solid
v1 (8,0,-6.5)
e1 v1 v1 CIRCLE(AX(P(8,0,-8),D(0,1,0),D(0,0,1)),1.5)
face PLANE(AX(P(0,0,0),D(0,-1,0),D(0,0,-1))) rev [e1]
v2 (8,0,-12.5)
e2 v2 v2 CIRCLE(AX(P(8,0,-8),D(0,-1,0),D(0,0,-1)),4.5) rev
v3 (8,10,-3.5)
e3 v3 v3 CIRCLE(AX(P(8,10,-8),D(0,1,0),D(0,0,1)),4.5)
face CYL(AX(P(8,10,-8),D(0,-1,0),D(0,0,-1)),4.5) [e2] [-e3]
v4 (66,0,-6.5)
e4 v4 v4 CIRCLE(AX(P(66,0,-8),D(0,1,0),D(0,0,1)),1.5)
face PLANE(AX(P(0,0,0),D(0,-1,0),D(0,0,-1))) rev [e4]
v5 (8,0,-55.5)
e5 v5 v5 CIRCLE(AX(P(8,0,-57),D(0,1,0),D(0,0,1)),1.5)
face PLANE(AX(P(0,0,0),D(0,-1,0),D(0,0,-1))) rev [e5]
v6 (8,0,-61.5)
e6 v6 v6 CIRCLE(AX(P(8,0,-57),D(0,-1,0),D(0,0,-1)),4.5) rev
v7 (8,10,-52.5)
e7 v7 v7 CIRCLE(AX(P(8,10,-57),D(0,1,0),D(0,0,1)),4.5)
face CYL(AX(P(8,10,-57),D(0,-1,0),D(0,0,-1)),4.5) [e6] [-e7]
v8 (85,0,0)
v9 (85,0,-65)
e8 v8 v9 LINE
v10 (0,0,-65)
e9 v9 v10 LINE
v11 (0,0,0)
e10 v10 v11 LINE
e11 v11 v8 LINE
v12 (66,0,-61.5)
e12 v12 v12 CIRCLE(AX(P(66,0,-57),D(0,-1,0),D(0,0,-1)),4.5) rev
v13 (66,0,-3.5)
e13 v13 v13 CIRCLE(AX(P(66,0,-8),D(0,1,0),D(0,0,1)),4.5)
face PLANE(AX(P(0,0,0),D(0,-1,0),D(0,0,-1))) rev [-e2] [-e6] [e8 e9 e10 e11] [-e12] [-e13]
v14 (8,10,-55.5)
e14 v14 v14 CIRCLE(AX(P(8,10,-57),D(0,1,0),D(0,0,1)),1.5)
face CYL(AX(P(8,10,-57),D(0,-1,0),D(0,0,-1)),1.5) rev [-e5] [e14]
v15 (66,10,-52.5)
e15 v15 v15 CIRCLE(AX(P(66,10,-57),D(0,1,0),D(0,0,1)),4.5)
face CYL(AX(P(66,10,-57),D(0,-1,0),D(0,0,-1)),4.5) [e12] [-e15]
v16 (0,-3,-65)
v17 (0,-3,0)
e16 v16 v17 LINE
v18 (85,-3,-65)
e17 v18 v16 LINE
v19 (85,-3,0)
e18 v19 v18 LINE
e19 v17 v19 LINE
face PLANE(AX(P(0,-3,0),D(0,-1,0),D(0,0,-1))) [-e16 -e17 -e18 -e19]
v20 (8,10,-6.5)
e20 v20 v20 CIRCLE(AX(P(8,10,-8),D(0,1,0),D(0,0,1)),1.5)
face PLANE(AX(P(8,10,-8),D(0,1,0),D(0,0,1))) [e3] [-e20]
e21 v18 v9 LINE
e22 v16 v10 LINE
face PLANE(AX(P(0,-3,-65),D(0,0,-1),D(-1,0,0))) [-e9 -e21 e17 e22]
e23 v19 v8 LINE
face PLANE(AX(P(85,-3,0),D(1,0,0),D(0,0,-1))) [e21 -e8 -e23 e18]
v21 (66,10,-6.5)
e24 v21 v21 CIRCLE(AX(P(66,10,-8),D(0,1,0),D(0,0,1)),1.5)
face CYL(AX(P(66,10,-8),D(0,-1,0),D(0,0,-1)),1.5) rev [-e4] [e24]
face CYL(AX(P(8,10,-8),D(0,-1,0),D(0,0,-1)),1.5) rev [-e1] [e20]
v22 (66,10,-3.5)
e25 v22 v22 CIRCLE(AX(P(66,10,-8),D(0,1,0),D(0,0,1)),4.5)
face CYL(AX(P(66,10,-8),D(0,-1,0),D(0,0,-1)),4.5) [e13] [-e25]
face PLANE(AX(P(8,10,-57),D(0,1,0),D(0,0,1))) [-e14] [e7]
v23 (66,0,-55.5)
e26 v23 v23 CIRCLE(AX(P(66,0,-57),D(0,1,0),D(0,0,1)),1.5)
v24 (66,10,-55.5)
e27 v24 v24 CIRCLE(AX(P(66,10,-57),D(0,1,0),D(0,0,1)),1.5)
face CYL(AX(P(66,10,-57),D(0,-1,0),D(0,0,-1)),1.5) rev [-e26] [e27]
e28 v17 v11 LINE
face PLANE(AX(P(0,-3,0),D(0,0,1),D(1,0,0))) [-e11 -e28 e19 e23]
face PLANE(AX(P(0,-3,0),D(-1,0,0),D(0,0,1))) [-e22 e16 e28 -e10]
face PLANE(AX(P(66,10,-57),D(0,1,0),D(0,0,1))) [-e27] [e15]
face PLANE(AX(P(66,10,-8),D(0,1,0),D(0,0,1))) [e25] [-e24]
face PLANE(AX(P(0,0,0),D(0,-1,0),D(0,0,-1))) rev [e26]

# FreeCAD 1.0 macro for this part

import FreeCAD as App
import Part
import Sketcher
from FreeCAD import Vector

doc = App.newDocument("Part")
body = doc.addObject("PartDesign::Body", "Body")

sketch1 = body.newObject("Sketcher::SketchObject", "Sketch")
sketch1.AttachmentSupport = (doc.getObject("XZ_Plane"), [""])
sketch1.MapMode = "FlatFace"
sketch1.addGeometry(Part.Circle(Vector(66, -8, 0), Vector(0, 0, 1), 4.5), False)
sketch1.addGeometry(Part.Circle(Vector(66, -8, 0), Vector(0, 0, 1), 1.5), False)
sketch1.addConstraint(Sketcher.Constraint("Coincident", 1, 3, 0, 3))
sketch1.addConstraint(Sketcher.Constraint("Diameter", 0, 9.0))
sketch1.addConstraint(Sketcher.Constraint("Diameter", 1, 3.0))
sketch1.addConstraint(Sketcher.Constraint("DistanceX", -1, 1, 0, 3, 66.0))
sketch1.addConstraint(Sketcher.Constraint("DistanceY", 0, 3, -1, 1, 8.0))
pad1 = body.newObject("PartDesign::Pad", "Pad")
pad1.Profile = sketch1
pad1.Length = 10
pad1.Reversed = True
body2 = doc.addObject("PartDesign::Body", "Body001")

sketch2 = body2.newObject("Sketcher::SketchObject", "Sketch001")
sketch2.AttachmentSupport = (doc.getObject("XZ_Plane001"), [""])
sketch2.MapMode = "FlatFace"
sketch2.addGeometry(Part.Circle(Vector(66, -57, 0), Vector(0, 0, 1), 4.5), False)
sketch2.addGeometry(Part.Circle(Vector(66, -57, 0), Vector(0, 0, 1), 1.5), False)
sketch2.addConstraint(Sketcher.Constraint("Coincident", 1, 3, 0, 3))
sketch2.addConstraint(Sketcher.Constraint("Diameter", 0, 9.0))
sketch2.addConstraint(Sketcher.Constraint("Diameter", 1, 3.0))
sketch2.addConstraint(Sketcher.Constraint("DistanceX", -1, 1, 0, 3, 66.0))
sketch2.addConstraint(Sketcher.Constraint("DistanceY", 0, 3, -1, 1, 57.0))
pad2 = body2.newObject("PartDesign::Pad", "Pad001")
pad2.Profile = sketch2
pad2.Length = 10
pad2.Reversed = True
body3 = doc.addObject("PartDesign::Body", "Body002")

sketch3 = body3.newObject("Sketcher::SketchObject", "Sketch002")
sketch3.AttachmentSupport = (doc.getObject("XZ_Plane002"), [""])
sketch3.MapMode = "FlatFace"
sketch3.addGeometry(Part.Circle(Vector(8, -57, 0), Vector(0, 0, 1), 4.5), False)
sketch3.addGeometry(Part.Circle(Vector(8, -57, 0), Vector(0, 0, 1), 1.5), False)
sketch3.addConstraint(Sketcher.Constraint("Coincident", 1, 3, 0, 3))
sketch3.addConstraint(Sketcher.Constraint("Diameter", 0, 9.0))
sketch3.addConstraint(Sketcher.Constraint("Diameter", 1, 3.0))
sketch3.addConstraint(Sketcher.Constraint("DistanceX", -1, 1, 0, 3, 8.0))
sketch3.addConstraint(Sketcher.Constraint("DistanceY", 0, 3, -1, 1, 57.0))
pad3 = body3.newObject("PartDesign::Pad", "Pad002")
pad3.Profile = sketch3
pad3.Length = 10
pad3.Reversed = True
body4 = doc.addObject("PartDesign::Body", "Body003")

sketch4 = body4.newObject("Sketcher::SketchObject", "Sketch003")
sketch4.AttachmentSupport = (doc.getObject("XZ_Plane003"), [""])
sketch4.MapMode = "FlatFace"
sketch4.addGeometry(Part.Circle(Vector(8, -8, 0), Vector(0, 0, 1), 4.5), False)
sketch4.addGeometry(Part.Circle(Vector(8, -8, 0), Vector(0, 0, 1), 1.5), False)
sketch4.addConstraint(Sketcher.Constraint("Coincident", 1, 3, 0, 3))
sketch4.addConstraint(Sketcher.Constraint("Diameter", 0, 9.0))
sketch4.addConstraint(Sketcher.Constraint("Diameter", 1, 3.0))
sketch4.addConstraint(Sketcher.Constraint("DistanceX", -1, 1, 0, 3, 8.0))
sketch4.addConstraint(Sketcher.Constraint("DistanceY", 0, 3, -1, 1, 8.0))
pad4 = body4.newObject("PartDesign::Pad", "Pad003")
pad4.Profile = sketch4
pad4.Length = 10
pad4.Reversed = True
body.AllowCompound = True
doc.recompute()

boolean = body.newObject("PartDesign::Boolean", "Boolean")
boolean.Type = "Fuse"
boolean.addObjects([body2])
doc.recompute()

boolean2 = body.newObject("PartDesign::Boolean", "Boolean001")
boolean2.Type = "Fuse"
boolean2.addObjects([body3])
doc.recompute()

boolean3 = body.newObject("PartDesign::Boolean", "Boolean002")
boolean3.Type = "Fuse"
boolean3.addObjects([body4])

sketch5 = body.newObject("Sketcher::SketchObject", "Sketch004")
sketch5.AttachmentSupport = (doc.getObject("XZ_Plane"), [""])
sketch5.MapMode = "FlatFace"
sketch5.addGeometry(Part.LineSegment(Vector(0, -65, 0), Vector(0, 0, 0)), False)
sketch5.addGeometry(Part.LineSegment(Vector(0, 0, 0), Vector(85, 0, 0)), False)
sketch5.addGeometry(Part.LineSegment(Vector(85, 0, 0), Vector(85, -65, 0)), False)
sketch5.addGeometry(Part.LineSegment(Vector(85, -65, 0), Vector(0, -65, 0)), False)
sketch5.addConstraint(Sketcher.Constraint("Coincident", 0, 2, 1, 1))
sketch5.addConstraint(Sketcher.Constraint("Coincident", 1, 2, 2, 1))
sketch5.addConstraint(Sketcher.Constraint("Coincident", 2, 2, 3, 1))
sketch5.addConstraint(Sketcher.Constraint("Coincident", 3, 2, 0, 1))
sketch5.addConstraint(Sketcher.Constraint("Vertical", 0))
sketch5.addConstraint(Sketcher.Constraint("Horizontal", 1))
sketch5.addConstraint(Sketcher.Constraint("Vertical", 2))
sketch5.addConstraint(Sketcher.Constraint("Horizontal", 3))
sketch5.addConstraint(Sketcher.Constraint("Coincident", 0, 2, -1, 1))
sketch5.addConstraint(Sketcher.Constraint("DistanceX", 1, 1, 1, 2, 85.0))
sketch5.addConstraint(Sketcher.Constraint("DistanceY", 0, 1, 0, 2, 65.0))
pad5 = body.newObject("PartDesign::Pad", "Pad004")
pad5.Profile = sketch5
pad5.Length = 3

doc.recompute()
